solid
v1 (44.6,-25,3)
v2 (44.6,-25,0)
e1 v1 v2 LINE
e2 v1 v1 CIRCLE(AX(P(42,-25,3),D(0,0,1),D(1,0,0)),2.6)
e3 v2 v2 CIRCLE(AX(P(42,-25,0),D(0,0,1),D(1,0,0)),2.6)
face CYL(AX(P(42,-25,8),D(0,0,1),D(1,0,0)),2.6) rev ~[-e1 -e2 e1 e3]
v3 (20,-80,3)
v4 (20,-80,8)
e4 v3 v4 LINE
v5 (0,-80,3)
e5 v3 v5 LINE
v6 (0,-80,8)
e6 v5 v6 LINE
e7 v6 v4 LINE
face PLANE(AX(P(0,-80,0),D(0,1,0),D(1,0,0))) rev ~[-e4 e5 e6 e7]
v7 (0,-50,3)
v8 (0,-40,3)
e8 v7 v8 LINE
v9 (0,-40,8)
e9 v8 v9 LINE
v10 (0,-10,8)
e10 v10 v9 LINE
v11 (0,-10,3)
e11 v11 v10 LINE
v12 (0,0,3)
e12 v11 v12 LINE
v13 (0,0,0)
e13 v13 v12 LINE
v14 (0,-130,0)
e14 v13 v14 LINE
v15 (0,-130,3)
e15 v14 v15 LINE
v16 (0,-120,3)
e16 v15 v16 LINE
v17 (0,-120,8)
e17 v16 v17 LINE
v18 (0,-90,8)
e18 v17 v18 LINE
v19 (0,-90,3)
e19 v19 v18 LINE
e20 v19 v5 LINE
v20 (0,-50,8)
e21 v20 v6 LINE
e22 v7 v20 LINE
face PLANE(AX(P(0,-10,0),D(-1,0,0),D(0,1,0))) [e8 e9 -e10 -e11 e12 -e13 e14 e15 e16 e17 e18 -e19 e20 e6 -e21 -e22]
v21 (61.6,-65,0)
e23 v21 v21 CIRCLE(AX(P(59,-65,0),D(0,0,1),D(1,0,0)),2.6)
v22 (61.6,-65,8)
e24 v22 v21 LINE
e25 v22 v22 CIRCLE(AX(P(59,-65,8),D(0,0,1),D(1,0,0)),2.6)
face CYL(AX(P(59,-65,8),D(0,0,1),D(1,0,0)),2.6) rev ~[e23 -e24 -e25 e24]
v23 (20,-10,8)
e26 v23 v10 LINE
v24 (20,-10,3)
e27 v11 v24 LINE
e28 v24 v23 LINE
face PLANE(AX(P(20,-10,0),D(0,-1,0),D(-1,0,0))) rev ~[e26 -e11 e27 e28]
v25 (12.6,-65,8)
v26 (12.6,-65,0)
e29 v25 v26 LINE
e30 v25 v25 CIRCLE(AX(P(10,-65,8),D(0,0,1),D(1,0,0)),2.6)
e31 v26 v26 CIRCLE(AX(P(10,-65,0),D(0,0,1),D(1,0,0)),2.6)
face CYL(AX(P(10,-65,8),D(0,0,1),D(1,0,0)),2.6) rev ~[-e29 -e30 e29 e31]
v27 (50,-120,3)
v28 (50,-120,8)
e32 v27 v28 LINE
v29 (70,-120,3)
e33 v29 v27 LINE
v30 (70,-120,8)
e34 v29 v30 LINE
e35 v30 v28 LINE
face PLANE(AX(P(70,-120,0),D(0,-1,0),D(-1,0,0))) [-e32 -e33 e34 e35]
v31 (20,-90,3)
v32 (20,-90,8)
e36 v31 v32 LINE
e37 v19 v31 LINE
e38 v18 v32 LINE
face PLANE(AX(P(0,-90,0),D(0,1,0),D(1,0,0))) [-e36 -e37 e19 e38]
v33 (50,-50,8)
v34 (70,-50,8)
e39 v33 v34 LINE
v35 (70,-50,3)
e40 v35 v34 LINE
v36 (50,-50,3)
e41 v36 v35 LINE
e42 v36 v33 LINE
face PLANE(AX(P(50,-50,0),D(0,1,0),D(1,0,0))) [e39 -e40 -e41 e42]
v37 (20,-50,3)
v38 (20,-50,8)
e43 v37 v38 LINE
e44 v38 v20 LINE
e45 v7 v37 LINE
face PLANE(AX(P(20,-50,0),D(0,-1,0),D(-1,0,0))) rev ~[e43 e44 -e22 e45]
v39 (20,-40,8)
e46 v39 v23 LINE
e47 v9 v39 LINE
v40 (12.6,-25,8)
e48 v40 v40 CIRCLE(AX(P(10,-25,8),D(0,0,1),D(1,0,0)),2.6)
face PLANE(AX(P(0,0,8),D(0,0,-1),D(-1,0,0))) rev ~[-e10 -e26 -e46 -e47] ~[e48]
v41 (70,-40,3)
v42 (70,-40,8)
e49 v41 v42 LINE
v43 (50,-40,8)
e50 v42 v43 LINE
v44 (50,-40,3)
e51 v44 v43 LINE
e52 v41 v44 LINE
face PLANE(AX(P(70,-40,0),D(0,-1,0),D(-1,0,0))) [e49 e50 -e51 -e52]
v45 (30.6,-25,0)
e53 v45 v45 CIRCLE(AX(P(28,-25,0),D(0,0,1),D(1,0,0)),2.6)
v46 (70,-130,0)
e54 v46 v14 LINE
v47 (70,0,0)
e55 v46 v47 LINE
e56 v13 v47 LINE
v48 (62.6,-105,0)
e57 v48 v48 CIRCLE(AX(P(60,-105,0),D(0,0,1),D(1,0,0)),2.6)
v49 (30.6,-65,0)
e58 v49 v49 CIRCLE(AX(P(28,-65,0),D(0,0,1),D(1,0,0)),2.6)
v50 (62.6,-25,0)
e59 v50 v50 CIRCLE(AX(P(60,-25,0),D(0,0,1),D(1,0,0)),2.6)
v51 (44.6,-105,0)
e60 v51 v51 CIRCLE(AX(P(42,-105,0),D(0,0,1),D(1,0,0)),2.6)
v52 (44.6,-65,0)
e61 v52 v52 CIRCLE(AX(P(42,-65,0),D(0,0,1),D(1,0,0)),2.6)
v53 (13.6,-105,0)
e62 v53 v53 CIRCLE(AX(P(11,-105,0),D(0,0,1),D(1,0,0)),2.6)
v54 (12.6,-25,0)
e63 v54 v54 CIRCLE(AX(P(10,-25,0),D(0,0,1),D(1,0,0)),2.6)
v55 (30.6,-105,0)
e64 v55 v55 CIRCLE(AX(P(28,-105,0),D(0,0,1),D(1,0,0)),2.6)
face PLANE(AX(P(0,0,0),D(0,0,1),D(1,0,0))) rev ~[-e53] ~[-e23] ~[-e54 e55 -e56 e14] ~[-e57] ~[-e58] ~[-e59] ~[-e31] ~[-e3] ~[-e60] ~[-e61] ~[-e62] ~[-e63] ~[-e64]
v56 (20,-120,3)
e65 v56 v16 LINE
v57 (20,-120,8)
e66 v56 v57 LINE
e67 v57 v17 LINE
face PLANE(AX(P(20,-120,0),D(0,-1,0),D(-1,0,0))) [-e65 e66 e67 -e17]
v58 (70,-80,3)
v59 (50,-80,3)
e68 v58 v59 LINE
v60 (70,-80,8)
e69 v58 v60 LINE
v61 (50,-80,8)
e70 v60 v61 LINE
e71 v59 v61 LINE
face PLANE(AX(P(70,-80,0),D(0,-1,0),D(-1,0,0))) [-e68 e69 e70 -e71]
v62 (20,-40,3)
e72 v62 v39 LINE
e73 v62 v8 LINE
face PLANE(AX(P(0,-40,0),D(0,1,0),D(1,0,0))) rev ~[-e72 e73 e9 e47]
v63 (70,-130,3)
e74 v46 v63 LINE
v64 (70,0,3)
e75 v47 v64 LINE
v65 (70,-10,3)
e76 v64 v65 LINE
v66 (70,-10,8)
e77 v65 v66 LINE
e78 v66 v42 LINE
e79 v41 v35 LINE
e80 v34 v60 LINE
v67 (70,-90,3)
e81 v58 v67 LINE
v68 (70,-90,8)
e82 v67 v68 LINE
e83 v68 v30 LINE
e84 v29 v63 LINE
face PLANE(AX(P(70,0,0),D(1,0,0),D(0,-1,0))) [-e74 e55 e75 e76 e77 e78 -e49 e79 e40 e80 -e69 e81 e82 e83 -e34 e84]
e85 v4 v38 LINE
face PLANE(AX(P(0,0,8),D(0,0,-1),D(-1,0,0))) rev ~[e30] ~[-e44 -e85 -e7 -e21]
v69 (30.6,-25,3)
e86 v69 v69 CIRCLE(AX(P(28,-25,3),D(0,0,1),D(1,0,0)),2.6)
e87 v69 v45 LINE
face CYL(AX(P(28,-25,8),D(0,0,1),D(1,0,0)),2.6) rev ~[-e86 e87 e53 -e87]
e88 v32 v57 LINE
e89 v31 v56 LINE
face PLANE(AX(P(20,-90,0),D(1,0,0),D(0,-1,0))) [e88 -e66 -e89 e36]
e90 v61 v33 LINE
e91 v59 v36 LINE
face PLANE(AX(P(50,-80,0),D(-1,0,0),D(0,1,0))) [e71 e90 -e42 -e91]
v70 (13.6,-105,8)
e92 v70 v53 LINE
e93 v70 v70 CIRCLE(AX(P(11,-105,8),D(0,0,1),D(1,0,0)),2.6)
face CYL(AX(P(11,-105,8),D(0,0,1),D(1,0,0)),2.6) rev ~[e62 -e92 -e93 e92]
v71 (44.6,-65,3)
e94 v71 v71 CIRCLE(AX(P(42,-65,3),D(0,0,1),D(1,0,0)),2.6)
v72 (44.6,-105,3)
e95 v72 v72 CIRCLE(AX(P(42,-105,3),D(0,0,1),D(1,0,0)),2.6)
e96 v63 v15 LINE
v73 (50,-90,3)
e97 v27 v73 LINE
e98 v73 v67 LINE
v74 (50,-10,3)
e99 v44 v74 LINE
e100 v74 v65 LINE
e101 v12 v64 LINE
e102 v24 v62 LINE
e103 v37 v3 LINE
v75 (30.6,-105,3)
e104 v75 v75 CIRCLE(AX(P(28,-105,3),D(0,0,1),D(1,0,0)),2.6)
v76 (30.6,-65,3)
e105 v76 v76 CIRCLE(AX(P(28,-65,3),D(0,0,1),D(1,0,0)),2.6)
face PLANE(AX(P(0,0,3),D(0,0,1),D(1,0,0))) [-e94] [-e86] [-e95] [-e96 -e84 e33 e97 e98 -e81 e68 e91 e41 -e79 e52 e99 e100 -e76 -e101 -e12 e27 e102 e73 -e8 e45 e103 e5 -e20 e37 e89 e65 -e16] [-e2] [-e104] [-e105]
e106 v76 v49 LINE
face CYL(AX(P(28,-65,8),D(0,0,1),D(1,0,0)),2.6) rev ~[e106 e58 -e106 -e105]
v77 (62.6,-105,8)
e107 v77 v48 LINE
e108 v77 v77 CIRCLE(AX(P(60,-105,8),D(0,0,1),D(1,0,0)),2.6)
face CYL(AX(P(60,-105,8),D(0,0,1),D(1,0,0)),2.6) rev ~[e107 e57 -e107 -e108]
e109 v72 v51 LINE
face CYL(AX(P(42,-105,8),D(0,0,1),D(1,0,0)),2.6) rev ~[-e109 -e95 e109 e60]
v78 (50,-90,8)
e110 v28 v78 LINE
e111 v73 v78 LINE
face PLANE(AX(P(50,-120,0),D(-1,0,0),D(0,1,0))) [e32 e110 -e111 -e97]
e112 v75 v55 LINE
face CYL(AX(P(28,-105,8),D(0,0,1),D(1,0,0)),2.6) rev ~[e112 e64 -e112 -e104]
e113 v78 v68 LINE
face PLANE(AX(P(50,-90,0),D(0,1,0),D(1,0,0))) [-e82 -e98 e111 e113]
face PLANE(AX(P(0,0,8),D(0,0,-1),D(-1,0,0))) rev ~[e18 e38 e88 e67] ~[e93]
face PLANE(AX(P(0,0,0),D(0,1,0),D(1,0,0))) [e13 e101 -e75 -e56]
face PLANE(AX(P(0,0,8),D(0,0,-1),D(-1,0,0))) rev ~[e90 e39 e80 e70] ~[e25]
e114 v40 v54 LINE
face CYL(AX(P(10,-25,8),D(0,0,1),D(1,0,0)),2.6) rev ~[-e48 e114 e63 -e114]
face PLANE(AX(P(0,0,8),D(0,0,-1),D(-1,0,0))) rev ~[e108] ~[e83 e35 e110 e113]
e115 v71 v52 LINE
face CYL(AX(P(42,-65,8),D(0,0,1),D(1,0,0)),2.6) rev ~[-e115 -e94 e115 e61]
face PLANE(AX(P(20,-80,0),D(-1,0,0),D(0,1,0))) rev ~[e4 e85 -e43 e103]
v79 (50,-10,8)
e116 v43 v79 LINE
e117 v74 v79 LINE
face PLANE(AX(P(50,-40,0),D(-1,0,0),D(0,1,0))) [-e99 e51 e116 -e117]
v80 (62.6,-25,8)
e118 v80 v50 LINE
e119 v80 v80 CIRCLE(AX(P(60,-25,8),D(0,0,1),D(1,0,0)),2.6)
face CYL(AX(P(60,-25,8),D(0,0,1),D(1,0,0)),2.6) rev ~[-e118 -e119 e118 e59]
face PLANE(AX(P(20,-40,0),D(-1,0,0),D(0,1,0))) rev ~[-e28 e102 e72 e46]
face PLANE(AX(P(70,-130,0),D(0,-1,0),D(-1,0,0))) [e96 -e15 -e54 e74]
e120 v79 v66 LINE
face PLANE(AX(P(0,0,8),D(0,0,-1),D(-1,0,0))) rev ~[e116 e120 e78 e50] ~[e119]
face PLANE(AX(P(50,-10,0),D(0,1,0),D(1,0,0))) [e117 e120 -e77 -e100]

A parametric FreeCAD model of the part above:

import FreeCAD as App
import Part
import Sketcher
from FreeCAD import Vector
Q = App.Units.Quantity


def add_polygon(sketch, points):
    """Adds a closed chain of lines whose ends are joined by coincident constraints."""
    first, n = sketch.GeometryCount, len(points)
    for a, b in zip(points, points[1:] + points[:1]):
        sketch.addGeometry(Part.LineSegment(App.Vector(*a, 0), App.Vector(*b, 0)), False)
    for i in range(n):
        sketch.addConstraint(Sketcher.Constraint("Coincident", first + i, 2, first + (i + 1) % n, 1))

doc = App.newDocument("Part")
body = doc.addObject("PartDesign::Body", "Body")

sketch1 = body.newObject("Sketcher::SketchObject", "Sketch")
sketch1.AttachmentSupport = (doc.getObject("XY_Plane"), [""])
sketch1.MapMode = "FlatFace"
add_polygon(sketch1, [(70, 0), (0, 0), (0, -10), (20, -10), (20, -40), (0, -40), (0, -50), (20, -50), (20, -80), (0, -80), (0, -90), (20, -90), (20, -120), (0, -120), (0, -130), (70, -130), (70, -120), (50, -120), (50, -90), (70, -90), (70, -80), (50, -80), (50, -50), (70, -50), (70, -40), (50, -40), (50, -10), (70, -10)])
sketch1.addConstraint(Sketcher.Constraint("Horizontal", 0))
sketch1.addConstraint(Sketcher.Constraint("Vertical", 1))
sketch1.addConstraint(Sketcher.Constraint("Horizontal", 2))
sketch1.addConstraint(Sketcher.Constraint("Vertical", 3))
sketch1.addConstraint(Sketcher.Constraint("Horizontal", 4))
sketch1.addConstraint(Sketcher.Constraint("Vertical", 5))
sketch1.addConstraint(Sketcher.Constraint("Horizontal", 6))
sketch1.addConstraint(Sketcher.Constraint("Vertical", 7))
sketch1.addConstraint(Sketcher.Constraint("Horizontal", 8))
sketch1.addConstraint(Sketcher.Constraint("Vertical", 9))
sketch1.addConstraint(Sketcher.Constraint("Horizontal", 10))
sketch1.addConstraint(Sketcher.Constraint("Vertical", 11))
sketch1.addConstraint(Sketcher.Constraint("Horizontal", 12))
sketch1.addConstraint(Sketcher.Constraint("Vertical", 13))
sketch1.addConstraint(Sketcher.Constraint("Horizontal", 14))
sketch1.addConstraint(Sketcher.Constraint("Vertical", 15))
sketch1.addConstraint(Sketcher.Constraint("Horizontal", 16))
sketch1.addConstraint(Sketcher.Constraint("Vertical", 17))
sketch1.addConstraint(Sketcher.Constraint("Horizontal", 18))
sketch1.addConstraint(Sketcher.Constraint("Vertical", 19))
sketch1.addConstraint(Sketcher.Constraint("Horizontal", 20))
sketch1.addConstraint(Sketcher.Constraint("Vertical", 21))
sketch1.addConstraint(Sketcher.Constraint("Horizontal", 22))
sketch1.addConstraint(Sketcher.Constraint("Vertical", 23))
sketch1.addConstraint(Sketcher.Constraint("Horizontal", 24))
sketch1.addConstraint(Sketcher.Constraint("Vertical", 25))
sketch1.addConstraint(Sketcher.Constraint("Horizontal", 26))
sketch1.addConstraint(Sketcher.Constraint("Vertical", 27))
sketch1.addConstraint(Sketcher.Constraint("Coincident", 0, 2, -1, 1))
sketch1.addConstraint(Sketcher.Constraint("PointOnObject", 4, 2, -2))
sketch1.addConstraint(Sketcher.Constraint("PointOnObject", 8, 2, -2))
sketch1.addConstraint(Sketcher.Constraint("PointOnObject", 12, 2, -2))
sketch1.addConstraint(Sketcher.Constraint("Horizontal", 12, 2, 15, 2))
sketch1.addConstraint(Sketcher.Constraint("Horizontal", 10, 2, 17, 2))
sketch1.addConstraint(Sketcher.Constraint("Horizontal", 8, 2, 19, 2))
sketch1.addConstraint(Sketcher.Constraint("Horizontal", 6, 2, 21, 2))
sketch1.addConstraint(Sketcher.Constraint("Horizontal", 4, 2, 23, 2))
sketch1.addConstraint(Sketcher.Constraint("Horizontal", 2, 2, 25, 2))
sketch1.addConstraint(Sketcher.Constraint("Vertical", 3, 2, 6, 2))
sketch1.addConstraint(Sketcher.Constraint("Vertical", 7, 2, 10, 2))
sketch1.addConstraint(Sketcher.Constraint("Vertical", 15, 2, 18, 2))
sketch1.addConstraint(Sketcher.Constraint("Vertical", 17, 2, 20, 2))
sketch1.addConstraint(Sketcher.Constraint("Vertical", 19, 2, 22, 2))
sketch1.addConstraint(Sketcher.Constraint("Vertical", 21, 2, 24, 2))
sketch1.addConstraint(Sketcher.Constraint("Vertical", 23, 2, 26, 2))
sketch1.addConstraint(Sketcher.Constraint("Equal", 12, 16))
sketch1.addConstraint(Sketcher.Constraint("Equal", 1, 5))
sketch1.addConstraint(Sketcher.Constraint("Equal", 3, 7))
sketch1.addConstraint(Sketcher.Constraint("Equal", 5, 9))
sketch1.addConstraint(Sketcher.Constraint("Equal", 7, 11))
sketch1.addConstraint(Sketcher.Constraint("Equal", 9, 13))
sketch1.addConstraint(Sketcher.Constraint("DistanceX", 0, 2, 0, 1, Q("70 mm")))
sketch1.addConstraint(Sketcher.Constraint("DistanceX", 2, 1, 2, 2, Q("20 mm")))
sketch1.addConstraint(Sketcher.Constraint("DistanceY", 1, 2, 1, 1, Q("10 mm")))
sketch1.addConstraint(Sketcher.Constraint("DistanceY", 3, 2, 3, 1, Q("30 mm")))
pad1 = body.newObject("PartDesign::Pad", "Pad")
pad1.Profile = sketch1
pad1.Length = 3

sketch2 = body.newObject("Sketcher::SketchObject", "Sketch001")
sketch2.AttachmentSupport = (doc.getObject("XY_Plane"), [""])
sketch2.MapMode = "FlatFace"
add_polygon(sketch2, [(50, -40), (50, -10), (70, -10), (70, -40)])
add_polygon(sketch2, [(0, -10), (20, -10), (20, -40), (0, -40)])
add_polygon(sketch2, [(0, -50), (20, -50), (20, -80), (0, -80)])
add_polygon(sketch2, [(0, -120), (0, -90), (20, -90), (20, -120)])
add_polygon(sketch2, [(50, -120), (50, -90), (70, -90), (70, -120)])
add_polygon(sketch2, [(70, -50), (70, -80), (50, -80), (50, -50)])
sketch2.addConstraint(Sketcher.Constraint("Vertical", 0))
sketch2.addConstraint(Sketcher.Constraint("Horizontal", 1))
sketch2.addConstraint(Sketcher.Constraint("Vertical", 2))
sketch2.addConstraint(Sketcher.Constraint("Horizontal", 3))
sketch2.addConstraint(Sketcher.Constraint("Horizontal", 4))
sketch2.addConstraint(Sketcher.Constraint("Vertical", 5))
sketch2.addConstraint(Sketcher.Constraint("Horizontal", 6))
sketch2.addConstraint(Sketcher.Constraint("Vertical", 7))
sketch2.addConstraint(Sketcher.Constraint("Horizontal", 8))
sketch2.addConstraint(Sketcher.Constraint("Vertical", 9))
sketch2.addConstraint(Sketcher.Constraint("Horizontal", 10))
sketch2.addConstraint(Sketcher.Constraint("Vertical", 11))
sketch2.addConstraint(Sketcher.Constraint("Vertical", 12))
sketch2.addConstraint(Sketcher.Constraint("Horizontal", 13))
sketch2.addConstraint(Sketcher.Constraint("Vertical", 14))
sketch2.addConstraint(Sketcher.Constraint("Horizontal", 15))
sketch2.addConstraint(Sketcher.Constraint("Vertical", 16))
sketch2.addConstraint(Sketcher.Constraint("Horizontal", 17))
sketch2.addConstraint(Sketcher.Constraint("Vertical", 18))
sketch2.addConstraint(Sketcher.Constraint("Horizontal", 19))
sketch2.addConstraint(Sketcher.Constraint("Vertical", 20))
sketch2.addConstraint(Sketcher.Constraint("Horizontal", 21))
sketch2.addConstraint(Sketcher.Constraint("Vertical", 22))
sketch2.addConstraint(Sketcher.Constraint("Horizontal", 23))
sketch2.addConstraint(Sketcher.Constraint("PointOnObject", 6, 2, -2))
sketch2.addConstraint(Sketcher.Constraint("PointOnObject", 10, 2, -2))
sketch2.addConstraint(Sketcher.Constraint("PointOnObject", 12, 2, -2))
sketch2.addConstraint(Sketcher.Constraint("Horizontal", 1, 2, 4, 2))
sketch2.addConstraint(Sketcher.Constraint("Horizontal", 3, 2, 5, 2))
sketch2.addConstraint(Sketcher.Constraint("Horizontal", 13, 2, 16, 2))
sketch2.addConstraint(Sketcher.Constraint("Horizontal", 15, 2, 18, 2))
sketch2.addConstraint(Sketcher.Constraint("Horizontal", 10, 2, 20, 2))
sketch2.addConstraint(Sketcher.Constraint("Horizontal", 11, 2, 22, 2))
sketch2.addConstraint(Sketcher.Constraint("Vertical", 5, 2, 8, 2))
sketch2.addConstraint(Sketcher.Constraint("Vertical", 9, 2, 13, 2))
sketch2.addConstraint(Sketcher.Constraint("Vertical", 3, 2, 16, 2))
sketch2.addConstraint(Sketcher.Constraint("Vertical", 2, 2, 17, 2))
sketch2.addConstraint(Sketcher.Constraint("Vertical", 18, 2, 20, 2))
sketch2.addConstraint(Sketcher.Constraint("Vertical", 19, 2, 21, 2))
sketch2.addConstraint(Sketcher.Constraint("Equal", 3, 4))
sketch2.addConstraint(Sketcher.Constraint("Equal", 7, 9))
sketch2.addConstraint(Sketcher.Constraint("Equal", 11, 12))
sketch2.addConstraint(Sketcher.Constraint("DistanceX", 1, 1, 1, 2, Q("20 mm")))
sketch2.addConstraint(Sketcher.Constraint("DistanceY", 0, 1, 0, 2, Q("30 mm")))
sketch2.addConstraint(Sketcher.Constraint("DistanceX", -1, 1, 0, 2, Q("50 mm")))
sketch2.addConstraint(Sketcher.Constraint("DistanceY", 0, 2, -1, 1, Q("10 mm")))
sketch2.addConstraint(Sketcher.Constraint("DistanceY", 8, 2, -1, 1, Q("50 mm")))
sketch2.addConstraint(Sketcher.Constraint("DistanceY", 12, 2, -1, 1, Q("90 mm")))
pad2 = body.newObject("PartDesign::Pad", "Pad001")
pad2.Profile = sketch2
pad2.Length = 8

sketch3 = body.newObject("Sketcher::SketchObject", "Sketch002")
sketch3.AttachmentSupport = (doc.getObject("XY_Plane"), [""])
sketch3.MapMode = "FlatFace"
sketch3.AttachmentOffset = App.Placement(Vector(0, 0, 8), App.Rotation())
sketch3.addGeometry(Part.Circle(Vector(10, -25, 0), Vector(0, 0, 1), 2.6), False)
sketch3.addGeometry(Part.Circle(Vector(28, -25, 0), Vector(0, 0, 1), 2.6), False)
sketch3.addGeometry(Part.Circle(Vector(42, -25, 0), Vector(0, 0, 1), 2.6), False)
sketch3.addGeometry(Part.Circle(Vector(60, -25, 0), Vector(0, 0, 1), 2.6), False)
sketch3.addGeometry(Part.Circle(Vector(10, -65, 0), Vector(0, 0, 1), 2.6), False)
sketch3.addGeometry(Part.Circle(Vector(28, -65, 0), Vector(0, 0, 1), 2.6), False)
sketch3.addGeometry(Part.Circle(Vector(42, -65, 0), Vector(0, 0, 1), 2.6), False)
sketch3.addGeometry(Part.Circle(Vector(59, -65, 0), Vector(0, 0, 1), 2.6), False)
sketch3.addGeometry(Part.Circle(Vector(11, -105, 0), Vector(0, 0, 1), 2.6), False)
sketch3.addGeometry(Part.Circle(Vector(28, -105, 0), Vector(0, 0, 1), 2.6), False)
sketch3.addGeometry(Part.Circle(Vector(42, -105, 0), Vector(0, 0, 1), 2.6), False)
sketch3.addGeometry(Part.Circle(Vector(60, -105, 0), Vector(0, 0, 1), 2.6), False)
sketch3.addConstraint(Sketcher.Constraint("Equal", 0, 1))
sketch3.addConstraint(Sketcher.Constraint("Equal", 1, 2))
sketch3.addConstraint(Sketcher.Constraint("Equal", 2, 3))
sketch3.addConstraint(Sketcher.Constraint("Equal", 3, 4))
sketch3.addConstraint(Sketcher.Constraint("Equal", 4, 5))
sketch3.addConstraint(Sketcher.Constraint("Equal", 5, 6))
sketch3.addConstraint(Sketcher.Constraint("Equal", 6, 7))
sketch3.addConstraint(Sketcher.Constraint("Equal", 7, 8))
sketch3.addConstraint(Sketcher.Constraint("Equal", 8, 9))
sketch3.addConstraint(Sketcher.Constraint("Equal", 9, 10))
sketch3.addConstraint(Sketcher.Constraint("Equal", 10, 11))
sketch3.addConstraint(Sketcher.Constraint("Horizontal", 0, 3, 1, 3))
sketch3.addConstraint(Sketcher.Constraint("Horizontal", 1, 3, 2, 3))
sketch3.addConstraint(Sketcher.Constraint("Horizontal", 2, 3, 3, 3))
sketch3.addConstraint(Sketcher.Constraint("Horizontal", 4, 3, 5, 3))
sketch3.addConstraint(Sketcher.Constraint("Horizontal", 5, 3, 6, 3))
sketch3.addConstraint(Sketcher.Constraint("Horizontal", 6, 3, 7, 3))
sketch3.addConstraint(Sketcher.Constraint("Horizontal", 8, 3, 9, 3))
sketch3.addConstraint(Sketcher.Constraint("Horizontal", 9, 3, 10, 3))
sketch3.addConstraint(Sketcher.Constraint("Horizontal", 10, 3, 11, 3))
sketch3.addConstraint(Sketcher.Constraint("Vertical", 0, 3, 4, 3))
sketch3.addConstraint(Sketcher.Constraint("Vertical", 1, 3, 5, 3))
sketch3.addConstraint(Sketcher.Constraint("Vertical", 2, 3, 6, 3))
sketch3.addConstraint(Sketcher.Constraint("Vertical", 5, 3, 9, 3))
sketch3.addConstraint(Sketcher.Constraint("Vertical", 6, 3, 10, 3))
sketch3.addConstraint(Sketcher.Constraint("Vertical", 3, 3, 11, 3))
sketch3.addConstraint(Sketcher.Constraint("Diameter", 0, Q("5.2 mm")))
sketch3.addConstraint(Sketcher.Constraint("DistanceX", -1, 1, 0, 3, Q("10 mm")))
sketch3.addConstraint(Sketcher.Constraint("DistanceY", 0, 3, -1, 1, Q("25 mm")))
sketch3.addConstraint(Sketcher.Constraint("DistanceX", -1, 1, 1, 3, Q("28 mm")))
sketch3.addConstraint(Sketcher.Constraint("DistanceX", -1, 1, 2, 3, Q("42 mm")))
sketch3.addConstraint(Sketcher.Constraint("DistanceX", -1, 1, 3, 3, Q("60 mm")))
sketch3.addConstraint(Sketcher.Constraint("DistanceY", 4, 3, -1, 1, Q("65 mm")))
sketch3.addConstraint(Sketcher.Constraint("DistanceX", -1, 1, 7, 3, Q("59 mm")))
sketch3.addConstraint(Sketcher.Constraint("DistanceX", -1, 1, 8, 3, Q("11 mm")))
sketch3.addConstraint(Sketcher.Constraint("DistanceY", 8, 3, -1, 1, Q("105 mm")))
pocket1 = body.newObject("PartDesign::Pocket", "Pocket")
pocket1.Profile = sketch3
pocket1.Type = "ThroughAll"

doc.recompute()
